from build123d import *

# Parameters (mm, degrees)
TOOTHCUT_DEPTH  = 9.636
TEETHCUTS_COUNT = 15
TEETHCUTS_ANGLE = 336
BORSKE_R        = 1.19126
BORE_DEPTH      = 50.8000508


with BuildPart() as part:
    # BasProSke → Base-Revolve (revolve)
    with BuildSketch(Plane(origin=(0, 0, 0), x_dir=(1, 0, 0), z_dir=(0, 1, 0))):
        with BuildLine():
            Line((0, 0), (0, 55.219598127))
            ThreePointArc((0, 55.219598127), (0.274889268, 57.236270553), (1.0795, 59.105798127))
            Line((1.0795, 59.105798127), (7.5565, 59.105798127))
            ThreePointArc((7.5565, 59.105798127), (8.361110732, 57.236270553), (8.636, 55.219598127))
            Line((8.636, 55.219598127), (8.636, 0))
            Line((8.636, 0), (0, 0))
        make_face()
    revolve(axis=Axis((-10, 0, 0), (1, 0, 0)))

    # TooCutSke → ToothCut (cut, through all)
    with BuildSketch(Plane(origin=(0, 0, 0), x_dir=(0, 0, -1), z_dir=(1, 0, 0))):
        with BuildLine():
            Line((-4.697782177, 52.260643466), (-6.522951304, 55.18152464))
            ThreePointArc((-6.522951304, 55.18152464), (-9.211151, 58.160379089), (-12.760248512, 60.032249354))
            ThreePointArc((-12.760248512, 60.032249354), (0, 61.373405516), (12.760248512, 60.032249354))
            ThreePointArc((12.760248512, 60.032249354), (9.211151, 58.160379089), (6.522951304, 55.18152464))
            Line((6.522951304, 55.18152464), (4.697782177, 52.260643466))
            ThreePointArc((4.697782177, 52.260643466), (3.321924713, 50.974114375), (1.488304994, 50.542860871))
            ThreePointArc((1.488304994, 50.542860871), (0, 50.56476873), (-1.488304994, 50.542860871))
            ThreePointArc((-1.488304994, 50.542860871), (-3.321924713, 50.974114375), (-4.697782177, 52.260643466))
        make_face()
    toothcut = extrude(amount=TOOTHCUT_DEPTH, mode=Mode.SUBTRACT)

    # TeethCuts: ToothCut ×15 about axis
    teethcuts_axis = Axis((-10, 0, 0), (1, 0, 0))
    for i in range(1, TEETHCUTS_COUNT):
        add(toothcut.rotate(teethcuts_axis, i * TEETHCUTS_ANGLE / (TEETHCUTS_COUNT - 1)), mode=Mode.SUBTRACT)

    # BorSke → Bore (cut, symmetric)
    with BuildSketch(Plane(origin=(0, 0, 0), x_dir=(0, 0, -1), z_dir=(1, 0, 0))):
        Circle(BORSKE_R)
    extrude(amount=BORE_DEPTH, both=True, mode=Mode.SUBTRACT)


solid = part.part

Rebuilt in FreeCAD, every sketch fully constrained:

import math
import FreeCAD as App
import Part
import Sketcher
from FreeCAD import Vector
Q = App.Units.Quantity

doc = App.newDocument("Part")
body = doc.addObject("PartDesign::Body", "Body")

sketch1 = doc.addObject("Sketcher::SketchObject", "Sketch")
body.addObject(sketch1)
sketch1.AttachmentSupport = (doc.XZ_Plane, [""])
sketch1.MapMode = "FlatFace"
sketch1.addGeometry([
    Part.LineSegment(Vector(0, -55.2, 0), Vector(0, 0, 0)),
    Part.LineSegment(Vector(0, 0, 0), Vector(8.6, 0, 0)),
    Part.LineSegment(Vector(8.6, 0, 0), Vector(8.6, -55.2, 0)),
    Part.ArcOfCircle(Part.Circle(Vector(1.1, -55.2, 0), Vector(0, 0, 1), 7.5), math.radians(-31), math.radians(0)),
    Part.LineSegment(Vector(7.6, -59.1, 0), Vector(1.1, -59.1, 0)),
    Part.ArcOfCircle(Part.Circle(Vector(7.5, -55.2, 0), Vector(0, 0, 1), 7.5), math.radians(-180), math.radians(-149)),
], False)
sketch1.addConstraint([
    Sketcher.Constraint("Coincident", 0, 2, 1, 1),
    Sketcher.Constraint("Coincident", 1, 2, 2, 1),
    Sketcher.Constraint("Tangent", 2, 2, 3, 2),
    Sketcher.Constraint("Coincident", 3, 1, 4, 1),
    Sketcher.Constraint("Coincident", 4, 2, 5, 2),
    Sketcher.Constraint("Tangent", 5, 1, 0, 1),
    Sketcher.Constraint("Vertical", 0),
    Sketcher.Constraint("Horizontal", 1),
    Sketcher.Constraint("Vertical", 2),
    Sketcher.Constraint("Horizontal", 4),
    Sketcher.Constraint("Coincident", 0, 2, -1, 1),
    Sketcher.Constraint("Equal", 3, 5),
    Sketcher.Constraint("Horizontal", 3, 3, 5, 3),
    Sketcher.Constraint("DistanceX", 1, 1, 1, 2, Q("0.34 in")),
    Sketcher.Constraint("DistanceX", 4, 2, 4, 1, Q("0.255 in")),
    Sketcher.Constraint("DistanceY", 0, 1, 0, 2, Q("2.1739999 in")),
    Sketcher.Constraint("DistanceY", 3, 1, -1, 1, Q("2.3269999 in")),
])
revolution = doc.addObject("PartDesign::Revolution", "Revolution")
body.addObject(revolution)
revolution.Profile = sketch1
revolution.ReferenceAxis = (sketch1, ["H_Axis"])
revolution.Angle = 360

sketch2 = doc.addObject("Sketcher::SketchObject", "Sketch001")
body.addObject(sketch2)
sketch2.AttachmentSupport = (doc.YZ_Plane, [""])
sketch2.MapMode = "FlatFace"
sketch2.addGeometry([
    Part.LineSegment(Vector(55.2, 6.5, 0), Vector(52.3, 4.7, 0)),
    Part.ArcOfCircle(Part.Circle(Vector(54.2, 1.6, 0), Vector(0, 0, 1), 3.7), math.radians(122), math.radians(182)),
    Part.ArcOfCircle(Part.Circle(Vector(0, 0, 0), Vector(0, 0, 1), 50.6), math.radians(-1.69), math.radians(1.69)),
    Part.ArcOfCircle(Part.Circle(Vector(54.2, -1.6, 0), Vector(0, 0, 1), 3.7), math.radians(178), math.radians(238)),
    Part.LineSegment(Vector(52.3, -4.7, 0), Vector(55.2, -6.5, 0)),
    Part.ArcOfCircle(Part.Circle(Vector(49.1, -16.3, 0), Vector(0, 0, 1), 11.5), math.radians(18), math.radians(58)),
    Part.ArcOfCircle(Part.Circle(Vector(0, 0, 0), Vector(0, 0, 1), 61.4), math.radians(-12), math.radians(12)),
    Part.ArcOfCircle(Part.Circle(Vector(49.1, 16.3, 0), Vector(0, 0, 1), 11.5), math.radians(-58), math.radians(-18)),
], False)
sketch2.addConstraint([
    Sketcher.Constraint("Tangent", 0, 2, 1, 1),
    Sketcher.Constraint("Tangent", 1, 2, 2, 2),
    Sketcher.Constraint("Tangent", 2, 1, 3, 1),
    Sketcher.Constraint("Tangent", 3, 2, 4, 1),
    Sketcher.Constraint("Tangent", 4, 2, 5, 2),
    Sketcher.Constraint("Coincident", 5, 1, 6, 1),
    Sketcher.Constraint("Coincident", 6, 2, 7, 2),
    Sketcher.Constraint("Tangent", 7, 1, 0, 1),
    Sketcher.Constraint("Coincident", 2, 3, -1, 1),
    Sketcher.Constraint("Coincident", 6, 3, -1, 1),
    Sketcher.Constraint("Equal", 1, 3),
    Sketcher.Constraint("Equal", 5, 7),
    Sketcher.Constraint("Symmetric", 5, 3, 7, 3, -1),
    Sketcher.Constraint("Vertical", 1, 3, 3, 3),
    Sketcher.Constraint("Angle", 0, Q("-148 deg")),
    Sketcher.Constraint("Radius", 1, Q("0.144 in")),
    Sketcher.Constraint("Radius", 5, Q("0.452 in")),
    Sketcher.Constraint("Radius", 2, Q("50.56477 mm")),
    Sketcher.Constraint("Distance", 0, Q("0.1356 in")),
    Sketcher.Constraint("Radius", 6, Q("61.373405 mm")),
    Sketcher.Constraint("DistanceY", -1, 1, 1, 3, Q("1.595961 mm")),
])
pocket1 = doc.addObject("PartDesign::Pocket", "Pocket")
body.addObject(pocket1)
pocket1.Profile = sketch2
pocket1.Type = "ThroughAll"
pocket1.Reversed = True
doc.recompute()

polarpattern = doc.addObject("PartDesign::PolarPattern", "PolarPattern")
body.addObject(polarpattern)
polarpattern.Originals = [pocket1]
polarpattern.Axis = (doc.X_Axis, [""])
polarpattern.Angle = 360
polarpattern.Occurrences = 15
body.Tip = polarpattern

sketch3 = doc.addObject("Sketcher::SketchObject", "Sketch002")
body.addObject(sketch3)
sketch3.AttachmentSupport = (doc.YZ_Plane, [""])
sketch3.MapMode = "FlatFace"
sketch3.addGeometry(Part.Circle(Vector(0, 0, 0), Vector(0, 0, 1), 1.2), False)
sketch3.addConstraint([
    Sketcher.Constraint("Coincident", 0, 3, -1, 1),
    Sketcher.Constraint("Diameter", 0, Q("0.0938 in")),
])
pocket2 = doc.addObject("PartDesign::Pocket", "Pocket001")
body.addObject(pocket2)
pocket2.Profile = sketch3
pocket2.Length = 101.600102
pocket2.Midplane = True

doc.recompute()
